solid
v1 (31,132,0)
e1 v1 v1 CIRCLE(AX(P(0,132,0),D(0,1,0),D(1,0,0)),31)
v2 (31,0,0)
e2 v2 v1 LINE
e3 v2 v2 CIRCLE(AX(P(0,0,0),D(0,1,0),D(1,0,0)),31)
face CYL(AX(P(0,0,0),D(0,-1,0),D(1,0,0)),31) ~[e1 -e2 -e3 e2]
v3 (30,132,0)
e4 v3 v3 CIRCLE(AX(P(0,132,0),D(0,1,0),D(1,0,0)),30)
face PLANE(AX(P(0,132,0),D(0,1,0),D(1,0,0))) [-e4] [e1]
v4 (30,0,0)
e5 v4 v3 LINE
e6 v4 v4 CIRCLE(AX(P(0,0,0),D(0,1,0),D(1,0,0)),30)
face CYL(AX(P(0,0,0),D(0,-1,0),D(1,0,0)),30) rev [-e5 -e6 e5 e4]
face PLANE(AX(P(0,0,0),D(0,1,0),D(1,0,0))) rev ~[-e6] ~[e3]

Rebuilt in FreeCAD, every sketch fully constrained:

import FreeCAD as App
import Part
import Sketcher

V = App.Vector
Q = App.Units.Quantity

doc = App.newDocument("Part")
body = doc.addObject("PartDesign::Body", "Body")

sketch1 = body.newObject("Sketcher::SketchObject", "Sketch")
sketch1.AttachmentSupport = (doc.getObject("XZ_Plane"), [""])
sketch1.MapMode = "FlatFace"
sketch1.addGeometry(Part.Circle(V(0, 0, 0), V(0, 0, 1), 31), False)
sketch1.addGeometry(Part.Circle(V(0, 0, 0), V(0, 0, 1), 30), False)
sketch1.addConstraint(Sketcher.Constraint("Coincident", 0, 3, -1, 1))
sketch1.addConstraint(Sketcher.Constraint("Coincident", 1, 3, -1, 1))
sketch1.addConstraint(Sketcher.Constraint("Diameter", 0, Q("62 mm")))
sketch1.addConstraint(Sketcher.Constraint("Diameter", 1, Q("60 mm")))
pad1 = body.newObject("PartDesign::Pad", "Pad")
pad1.Profile = sketch1
pad1.Length = 132
pad1.Reversed = True

doc.recompute()
